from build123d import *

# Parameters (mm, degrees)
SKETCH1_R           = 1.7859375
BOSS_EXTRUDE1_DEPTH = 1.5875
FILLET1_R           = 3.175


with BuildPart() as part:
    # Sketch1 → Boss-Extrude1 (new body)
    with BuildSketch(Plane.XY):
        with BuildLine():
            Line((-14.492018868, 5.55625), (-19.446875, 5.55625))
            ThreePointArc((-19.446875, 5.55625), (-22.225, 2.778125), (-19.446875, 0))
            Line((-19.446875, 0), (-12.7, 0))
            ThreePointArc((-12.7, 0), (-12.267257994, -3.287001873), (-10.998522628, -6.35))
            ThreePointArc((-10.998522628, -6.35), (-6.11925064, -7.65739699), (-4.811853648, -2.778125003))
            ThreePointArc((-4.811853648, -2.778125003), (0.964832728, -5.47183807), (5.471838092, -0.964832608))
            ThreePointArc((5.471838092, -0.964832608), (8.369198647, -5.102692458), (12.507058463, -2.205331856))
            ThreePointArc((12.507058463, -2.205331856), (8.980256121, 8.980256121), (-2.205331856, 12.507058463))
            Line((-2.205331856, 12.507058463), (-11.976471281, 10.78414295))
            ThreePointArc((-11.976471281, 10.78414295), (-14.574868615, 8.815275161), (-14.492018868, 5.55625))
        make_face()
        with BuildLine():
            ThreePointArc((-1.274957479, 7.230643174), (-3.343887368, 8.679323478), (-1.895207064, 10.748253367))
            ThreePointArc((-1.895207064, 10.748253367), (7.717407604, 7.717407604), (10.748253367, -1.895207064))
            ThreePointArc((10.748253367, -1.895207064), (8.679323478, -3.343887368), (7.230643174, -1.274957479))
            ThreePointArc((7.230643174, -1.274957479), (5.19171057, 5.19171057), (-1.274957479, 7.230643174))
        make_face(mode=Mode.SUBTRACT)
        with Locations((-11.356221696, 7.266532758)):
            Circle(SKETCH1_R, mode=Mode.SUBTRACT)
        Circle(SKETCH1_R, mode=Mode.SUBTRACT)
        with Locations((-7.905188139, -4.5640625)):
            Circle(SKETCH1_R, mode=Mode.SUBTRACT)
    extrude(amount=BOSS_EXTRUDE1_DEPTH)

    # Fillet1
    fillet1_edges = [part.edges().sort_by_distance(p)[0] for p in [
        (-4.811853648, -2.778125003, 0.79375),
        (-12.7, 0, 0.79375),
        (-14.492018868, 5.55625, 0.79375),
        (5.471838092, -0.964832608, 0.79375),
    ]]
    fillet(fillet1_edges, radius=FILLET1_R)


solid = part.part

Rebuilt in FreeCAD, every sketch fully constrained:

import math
import FreeCAD as App
import Part
import Sketcher

V = App.Vector
Q = App.Units.Quantity


def edges_at(feature, points):
    """Names of the edges that pass closest to the given points."""
    edges = feature.Shape.Edges
    near = lambda p: min(range(len(edges)), key=lambda i: edges[i].distToShape(Part.Vertex(*p))[0])
    return sorted({f"Edge{near(p) + 1}" for p in points})

doc = App.newDocument("Part")
params = doc.addObject("Spreadsheet::Sheet", "Params")
for row, (alias, value) in enumerate([
    ("sketch1_radius", "0.5 in"),
    ("sketch1_diameter", "0.140625 in"),
    ("sketch1_radius2", "0.109375 in"),
    ("sketch1_radius3", "0.140625 in"),
    ("sketch1_width", "0.265625 in"),
    ("pad1_length", "0.0625 in"),
    ("fillet_radius", "0.125 in"),
], start=1):
    params.set(f"A{row}", alias)
    params.set(f"B{row}", "=" + value)
    params.setAlias(f"B{row}", alias)

body = doc.addObject("PartDesign::Body", "Body")

# Sketch on XY plane
sketch1 = body.newObject("Sketcher::SketchObject", "Sketch")
sketch1.AttachmentSupport = (doc.getObject("XY_Plane"), [""])
sketch1.MapMode = "FlatFace"
sketch1.addGeometry([
    Part.LineSegment(V(-14.5, 5.6, 0), V(-19.4, 5.6, 0)),  # 0
    Part.ArcOfCircle(Part.Circle(V(-19.4, 2.8, 0), V(0, 0, 1), 2.8), math.radians(90), math.radians(270)),  # 1
    Part.LineSegment(V(-19.4, 0, 0), V(-12.7, 0, 0)),  # 2
    Part.ArcOfCircle(Part.Circle(V(0, 0, 0), V(0, 0, 1), 12.7), math.radians(180), math.radians(210)),  # 3
    Part.ArcOfCircle(Part.Circle(V(-7.9, -4.6, 0), V(0, 0, 1), 3.6), math.radians(-150), math.radians(30)),  # 4
    Part.ArcOfCircle(Part.Circle(V(0, 0, 0), V(0, 0, 1), 5.6), math.radians(-150), math.radians(-10)),  # 5
    Part.ArcOfCircle(Part.Circle(V(9, -1.6, 0), V(0, 0, 1), 3.6), math.radians(170), math.radians(350)),  # 6
    Part.ArcOfCircle(Part.Circle(V(0, 0, 0), V(0, 0, 1), 12.7), math.radians(-10), math.radians(100)),  # 7
    Part.LineSegment(V(-2.2, 12.5, 0), V(-12, 10.8, 0)),  # 8
    Part.ArcOfCircle(Part.Circle(V(-11.4, 7.3, 0), V(0, 0, 1), 3.6), math.radians(100), math.radians(209)),  # 9
    Part.Circle(V(-7.9, -4.6, 0), V(0, 0, 1), 1.8),  # 10
    Part.Circle(V(0, 0, 0), V(0, 0, 1), 1.8),  # 11
    Part.Circle(V(-11.4, 7.3, 0), V(0, 0, 1), 1.8),  # 12
    Part.ArcOfCircle(Part.Circle(V(0, 0, 0), V(0, 0, 1), 7.3), math.radians(-10), math.radians(100)),  # 13
    Part.ArcOfCircle(Part.Circle(V(-1.6, 9, 0), V(0, 0, 1), 1.8), math.radians(100), math.radians(280)),  # 14
    Part.ArcOfCircle(Part.Circle(V(0, 0, 0), V(0, 0, 1), 10.9), math.radians(-10), math.radians(100)),  # 15
    Part.ArcOfCircle(Part.Circle(V(9, -1.6, 0), V(0, 0, 1), 1.8), math.radians(170), math.radians(350)),  # 16
], False)
sketch1.addConstraint([
    Sketcher.Constraint("Tangent", 0, 2, 1, 1),
    Sketcher.Constraint("Tangent", 1, 2, 2, 1),
    Sketcher.Constraint("Coincident", 2, 2, 3, 1),
    Sketcher.Constraint("Tangent", 3, 2, 4, 1),
    Sketcher.Constraint("Tangent", 4, 2, 5, 1),
    Sketcher.Constraint("Tangent", 5, 2, 6, 1),
    Sketcher.Constraint("Tangent", 6, 2, 7, 1),
    Sketcher.Constraint("Tangent", 7, 2, 8, 1),
    Sketcher.Constraint("Tangent", 8, 2, 9, 1),
    Sketcher.Constraint("Coincident", 9, 2, 0, 1),
    Sketcher.Constraint("Tangent", 13, 2, 14, 2),
    Sketcher.Constraint("Tangent", 14, 1, 15, 2),
    Sketcher.Constraint("Tangent", 15, 1, 16, 2),
    Sketcher.Constraint("Tangent", 16, 1, 13, 1),
    Sketcher.Constraint("Horizontal", 0),
    Sketcher.Constraint("Horizontal", 2),
    Sketcher.Constraint("Coincident", 3, 3, -1, 1),
    Sketcher.Constraint("Coincident", 5, 3, -1, 1),
    Sketcher.Constraint("Coincident", 7, 3, -1, 1),
    Sketcher.Constraint("Coincident", 11, 3, -1, 1),
    Sketcher.Constraint("Coincident", 13, 3, -1, 1),
    Sketcher.Constraint("Coincident", 15, 3, -1, 1),
    Sketcher.Constraint("Coincident", 10, 3, 4, 3),
    Sketcher.Constraint("Coincident", 12, 3, 9, 3),
    Sketcher.Constraint("Coincident", 16, 3, 6, 3),
    Sketcher.Constraint("Equal", 4, 6),
    Sketcher.Constraint("Equal", 6, 9),
    Sketcher.Constraint("Equal", 10, 11),
    Sketcher.Constraint("Equal", 11, 12),
    Sketcher.Constraint("Equal", 12, 14),
    Sketcher.Constraint("PointOnObject", 1, 2, -1),
    Sketcher.Constraint("Radius", 3, Q("0.5 in")),
    Sketcher.Constraint("Diameter", 10, Q("0.140625 in")),
    Sketcher.Constraint("Angle", 8, Q("-170 deg")),
    Sketcher.Constraint("Radius", 1, Q("0.109375 in")),
    Sketcher.Constraint("Radius", 4, Q("0.140625 in")),
    Sketcher.Constraint("DistanceX", 2, 1, 2, 2, Q("0.265625 in")),
    Sketcher.Constraint("DistanceY", 3, 2, -1, 1, Q("0.25 in")),
    Sketcher.Constraint("Distance", 8, Q("0.390625 in")),
    Sketcher.Constraint("DistanceX", 8, 2, 14, 1, Q("0.3969002 in")),
    Sketcher.Constraint("DistanceY", 6, 2, 5, 2, 1.240499),
])
sketch1.setExpression("Constraints[31]", "Params.sketch1_radius")
sketch1.setExpression("Constraints[32]", "Params.sketch1_diameter")
sketch1.setExpression("Constraints[34]", "Params.sketch1_radius2")
sketch1.setExpression("Constraints[35]", "Params.sketch1_radius3")
sketch1.setExpression("Constraints[36]", "Params.sketch1_width")
pad1 = body.newObject("PartDesign::Pad", "Pad")
pad1.Profile = sketch1
pad1.setExpression("Length", "Params.pad1_length")
doc.recompute()

fillet = body.newObject("PartDesign::Fillet", "Fillet")
fillet.Base = (pad1, edges_at(pad1, [
    (-4.812, -2.778, 0.794),
    (-12.7, 0, 0.794),
    (-14.492, 5.556, 0.794),
    (5.472, -0.965, 0.794),
]))
fillet.setExpression("Radius", "Params.fillet_radius")

doc.recompute()
